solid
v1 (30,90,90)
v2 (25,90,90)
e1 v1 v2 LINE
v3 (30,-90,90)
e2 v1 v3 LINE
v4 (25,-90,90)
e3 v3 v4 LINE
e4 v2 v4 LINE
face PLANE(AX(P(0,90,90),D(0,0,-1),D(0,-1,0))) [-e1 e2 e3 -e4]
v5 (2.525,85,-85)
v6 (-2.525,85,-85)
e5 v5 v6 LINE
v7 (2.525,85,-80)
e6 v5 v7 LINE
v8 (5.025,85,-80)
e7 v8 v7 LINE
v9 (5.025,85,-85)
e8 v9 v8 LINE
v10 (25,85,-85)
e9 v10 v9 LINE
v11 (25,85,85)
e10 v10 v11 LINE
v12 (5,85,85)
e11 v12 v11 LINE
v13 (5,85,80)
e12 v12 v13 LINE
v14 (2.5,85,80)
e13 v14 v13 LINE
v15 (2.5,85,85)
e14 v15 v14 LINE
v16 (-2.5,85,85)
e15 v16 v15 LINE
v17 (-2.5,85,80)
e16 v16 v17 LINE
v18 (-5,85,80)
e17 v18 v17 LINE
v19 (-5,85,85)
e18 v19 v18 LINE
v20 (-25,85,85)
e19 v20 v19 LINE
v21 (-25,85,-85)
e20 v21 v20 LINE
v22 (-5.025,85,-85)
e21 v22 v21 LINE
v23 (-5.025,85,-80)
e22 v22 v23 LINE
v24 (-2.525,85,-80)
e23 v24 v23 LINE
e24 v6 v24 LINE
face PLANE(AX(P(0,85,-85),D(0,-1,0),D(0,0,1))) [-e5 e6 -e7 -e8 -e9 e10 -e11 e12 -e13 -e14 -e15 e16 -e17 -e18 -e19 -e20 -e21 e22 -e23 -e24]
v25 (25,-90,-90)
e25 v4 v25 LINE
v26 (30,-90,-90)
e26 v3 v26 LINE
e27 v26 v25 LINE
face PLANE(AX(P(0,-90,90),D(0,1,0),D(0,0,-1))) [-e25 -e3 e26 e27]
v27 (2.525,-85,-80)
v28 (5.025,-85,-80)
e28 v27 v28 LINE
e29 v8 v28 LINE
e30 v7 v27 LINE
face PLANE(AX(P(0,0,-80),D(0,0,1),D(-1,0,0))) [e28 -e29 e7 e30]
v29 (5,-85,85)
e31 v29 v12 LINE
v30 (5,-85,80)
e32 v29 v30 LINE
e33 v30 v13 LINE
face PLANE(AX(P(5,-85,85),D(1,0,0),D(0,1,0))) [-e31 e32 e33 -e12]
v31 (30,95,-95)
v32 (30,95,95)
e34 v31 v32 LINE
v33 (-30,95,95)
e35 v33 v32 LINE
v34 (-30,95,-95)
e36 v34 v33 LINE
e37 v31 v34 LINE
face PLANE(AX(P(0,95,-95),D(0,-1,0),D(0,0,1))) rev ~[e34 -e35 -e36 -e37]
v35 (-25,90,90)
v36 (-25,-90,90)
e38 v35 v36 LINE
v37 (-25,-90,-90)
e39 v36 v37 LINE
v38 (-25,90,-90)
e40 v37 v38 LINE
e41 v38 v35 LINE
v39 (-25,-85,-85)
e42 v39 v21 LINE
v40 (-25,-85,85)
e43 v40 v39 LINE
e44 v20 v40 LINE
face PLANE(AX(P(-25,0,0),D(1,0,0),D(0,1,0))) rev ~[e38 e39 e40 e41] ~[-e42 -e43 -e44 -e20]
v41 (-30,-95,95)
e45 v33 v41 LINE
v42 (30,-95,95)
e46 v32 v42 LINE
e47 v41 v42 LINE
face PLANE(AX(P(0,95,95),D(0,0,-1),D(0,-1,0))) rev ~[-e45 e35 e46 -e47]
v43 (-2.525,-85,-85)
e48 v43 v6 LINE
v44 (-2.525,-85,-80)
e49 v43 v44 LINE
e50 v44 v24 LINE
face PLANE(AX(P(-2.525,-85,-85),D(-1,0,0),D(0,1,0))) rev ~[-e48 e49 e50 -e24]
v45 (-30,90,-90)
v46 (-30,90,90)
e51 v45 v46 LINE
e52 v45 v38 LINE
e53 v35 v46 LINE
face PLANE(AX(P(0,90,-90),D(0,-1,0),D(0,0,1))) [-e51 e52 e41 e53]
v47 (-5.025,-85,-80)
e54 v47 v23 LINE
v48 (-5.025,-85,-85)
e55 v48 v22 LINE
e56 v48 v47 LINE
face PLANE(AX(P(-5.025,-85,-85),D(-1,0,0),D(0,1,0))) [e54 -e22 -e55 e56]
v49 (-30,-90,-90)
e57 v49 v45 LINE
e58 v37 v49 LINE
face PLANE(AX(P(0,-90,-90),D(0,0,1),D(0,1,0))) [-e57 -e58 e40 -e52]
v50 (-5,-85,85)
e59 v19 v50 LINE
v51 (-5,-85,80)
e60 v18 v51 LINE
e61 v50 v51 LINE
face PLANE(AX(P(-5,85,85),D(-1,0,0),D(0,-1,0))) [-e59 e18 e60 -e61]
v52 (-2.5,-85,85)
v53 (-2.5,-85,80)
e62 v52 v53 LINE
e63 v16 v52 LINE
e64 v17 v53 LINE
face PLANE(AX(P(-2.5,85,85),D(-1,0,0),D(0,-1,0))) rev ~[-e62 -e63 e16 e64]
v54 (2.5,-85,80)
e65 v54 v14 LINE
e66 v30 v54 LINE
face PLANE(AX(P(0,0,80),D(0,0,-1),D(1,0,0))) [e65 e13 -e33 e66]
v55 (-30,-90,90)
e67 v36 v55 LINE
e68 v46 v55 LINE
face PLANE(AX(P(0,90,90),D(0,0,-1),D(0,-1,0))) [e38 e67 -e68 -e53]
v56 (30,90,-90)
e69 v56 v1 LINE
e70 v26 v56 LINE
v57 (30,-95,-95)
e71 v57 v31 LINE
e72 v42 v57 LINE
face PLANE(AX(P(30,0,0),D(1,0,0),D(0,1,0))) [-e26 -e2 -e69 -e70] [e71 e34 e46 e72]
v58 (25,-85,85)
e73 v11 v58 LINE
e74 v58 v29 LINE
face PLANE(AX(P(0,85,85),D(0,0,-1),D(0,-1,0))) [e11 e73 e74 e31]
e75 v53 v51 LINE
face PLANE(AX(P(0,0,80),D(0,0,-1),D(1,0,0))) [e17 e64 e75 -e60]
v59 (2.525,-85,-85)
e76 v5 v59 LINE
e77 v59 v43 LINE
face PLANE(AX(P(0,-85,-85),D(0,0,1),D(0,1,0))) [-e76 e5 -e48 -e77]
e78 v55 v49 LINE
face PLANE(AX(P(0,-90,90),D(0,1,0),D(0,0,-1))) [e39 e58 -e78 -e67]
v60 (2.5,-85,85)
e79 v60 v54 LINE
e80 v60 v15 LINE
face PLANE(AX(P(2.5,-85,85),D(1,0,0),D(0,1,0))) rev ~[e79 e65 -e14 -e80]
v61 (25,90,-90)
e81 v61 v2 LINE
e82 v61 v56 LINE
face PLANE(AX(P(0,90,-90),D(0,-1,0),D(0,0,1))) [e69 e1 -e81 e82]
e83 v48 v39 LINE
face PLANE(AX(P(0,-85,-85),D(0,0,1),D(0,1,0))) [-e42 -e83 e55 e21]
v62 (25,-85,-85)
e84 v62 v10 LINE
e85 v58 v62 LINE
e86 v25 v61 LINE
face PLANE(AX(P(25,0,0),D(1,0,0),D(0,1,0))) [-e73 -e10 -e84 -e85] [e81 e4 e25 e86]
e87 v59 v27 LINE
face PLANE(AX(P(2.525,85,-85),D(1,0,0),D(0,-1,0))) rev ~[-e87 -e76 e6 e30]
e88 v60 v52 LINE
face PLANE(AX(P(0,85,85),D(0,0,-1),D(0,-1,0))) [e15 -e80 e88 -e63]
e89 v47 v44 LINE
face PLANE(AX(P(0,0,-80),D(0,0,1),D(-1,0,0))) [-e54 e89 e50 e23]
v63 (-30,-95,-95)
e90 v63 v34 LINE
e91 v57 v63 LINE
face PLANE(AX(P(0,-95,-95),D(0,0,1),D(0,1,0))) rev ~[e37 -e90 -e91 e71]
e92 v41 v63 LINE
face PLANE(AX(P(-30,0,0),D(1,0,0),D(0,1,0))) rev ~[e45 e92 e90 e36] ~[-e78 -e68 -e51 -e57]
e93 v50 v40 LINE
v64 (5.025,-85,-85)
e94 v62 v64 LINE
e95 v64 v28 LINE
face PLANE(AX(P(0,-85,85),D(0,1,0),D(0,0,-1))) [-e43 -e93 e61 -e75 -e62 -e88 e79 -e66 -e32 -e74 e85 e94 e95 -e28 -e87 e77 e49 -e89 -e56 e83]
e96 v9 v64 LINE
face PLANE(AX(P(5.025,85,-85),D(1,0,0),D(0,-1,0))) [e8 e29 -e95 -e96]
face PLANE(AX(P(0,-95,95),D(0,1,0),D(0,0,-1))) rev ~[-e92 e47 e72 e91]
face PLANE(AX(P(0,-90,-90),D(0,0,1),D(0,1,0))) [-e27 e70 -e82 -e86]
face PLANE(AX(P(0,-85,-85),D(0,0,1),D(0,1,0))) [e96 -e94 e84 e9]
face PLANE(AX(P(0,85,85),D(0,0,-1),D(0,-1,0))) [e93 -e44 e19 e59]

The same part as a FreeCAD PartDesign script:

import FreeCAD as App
import Part
import Sketcher

V = App.Vector


def add_polygon(sketch, points):
    """Adds a closed chain of lines whose ends are joined by coincident constraints."""
    first, n = sketch.GeometryCount, len(points)
    for a, b in zip(points, points[1:] + points[:1]):
        sketch.addGeometry(Part.LineSegment(App.Vector(*a, 0), App.Vector(*b, 0)), False)
    for i in range(n):
        sketch.addConstraint(Sketcher.Constraint("Coincident", first + i, 2, first + (i + 1) % n, 1))

doc = App.newDocument("Part")
body = doc.addObject("PartDesign::Body", "Body")

sketch1 = body.newObject("Sketcher::SketchObject", "Sketch")
sketch1.AttachmentSupport = (doc.getObject("YZ_Plane"), [""])
sketch1.MapMode = "FlatFace"
add_polygon(sketch1, [(-90, -90), (90, -90), (90, 90), (-90, 90)])
add_polygon(sketch1, [(-85, 85), (85, 85), (85, -85), (-85, -85)])
sketch1.addConstraint(Sketcher.Constraint("Horizontal", 0))
sketch1.addConstraint(Sketcher.Constraint("Vertical", 1))
sketch1.addConstraint(Sketcher.Constraint("Horizontal", 2))
sketch1.addConstraint(Sketcher.Constraint("Vertical", 3))
sketch1.addConstraint(Sketcher.Constraint("Horizontal", 4))
sketch1.addConstraint(Sketcher.Constraint("Vertical", 5))
sketch1.addConstraint(Sketcher.Constraint("Horizontal", 6))
sketch1.addConstraint(Sketcher.Constraint("Vertical", 7))
sketch1.addConstraint(Sketcher.Constraint("Symmetric", 0, 2, 2, 2, -1, 1))
sketch1.addConstraint(Sketcher.Constraint("Symmetric", 4, 2, 6, 2, -1, 1))
sketch1.addConstraint(Sketcher.Constraint("Equal", 2, 1))
sketch1.addConstraint(Sketcher.Constraint("Equal", 6, 5))
sketch1.addConstraint(Sketcher.Constraint("DistanceX", 4, 2, 1, 2, 5.0))
sketch1.addConstraint(Sketcher.Constraint("DistanceX", 0, 1, 0, 2, 180.0))
pad1 = body.newObject("PartDesign::Pad", "Pad")
pad1.Profile = sketch1
pad1.Length = 50
pad1.Midplane = True

sketch2 = body.newObject("Sketcher::SketchObject", "Sketch001")
sketch2.AttachmentSupport = (doc.getObject("YZ_Plane"), [""])
sketch2.MapMode = "FlatFace"
add_polygon(sketch2, [(95, -95), (95, 95), (-95, 95), (-95, -95)])
add_polygon(sketch2, [(90, 90), (90, -90), (-90, -90), (-90, 90)])
sketch2.addConstraint(Sketcher.Constraint("Vertical", 0))
sketch2.addConstraint(Sketcher.Constraint("Horizontal", 1))
sketch2.addConstraint(Sketcher.Constraint("Vertical", 2))
sketch2.addConstraint(Sketcher.Constraint("Horizontal", 3))
sketch2.addConstraint(Sketcher.Constraint("Vertical", 4))
sketch2.addConstraint(Sketcher.Constraint("Horizontal", 5))
sketch2.addConstraint(Sketcher.Constraint("Vertical", 6))
sketch2.addConstraint(Sketcher.Constraint("Horizontal", 7))
sketch2.addConstraint(Sketcher.Constraint("Symmetric", 0, 2, 2, 2, -1, 1))
sketch2.addConstraint(Sketcher.Constraint("Symmetric", 4, 2, 6, 2, -1, 1))
sketch2.addConstraint(Sketcher.Constraint("Equal", 3, 0))
sketch2.addConstraint(Sketcher.Constraint("Equal", 7, 4))
sketch2.addConstraint(Sketcher.Constraint("DistanceX", 1, 2, 1, 1, 190.0))
sketch2.addConstraint(Sketcher.Constraint("DistanceX", 4, 2, 3, 2, 5.0))
pad2 = body.newObject("PartDesign::Pad", "Pad001")
pad2.Profile = sketch2
pad2.Length = 60
pad2.Midplane = True

sketch3 = body.newObject("Sketcher::SketchObject", "Sketch002")
sketch3.AttachmentSupport = (doc.getObject("XY_Plane"), [""])
sketch3.MapMode = "FlatFace"
sketch3.AttachmentOffset = App.Placement(V(0, 0, -85), App.Rotation())
add_polygon(sketch3, [(-5, -85), (-2.5, -85), (-2.5, 85), (-5, 85)])
add_polygon(sketch3, [(2.5, 85), (2.5, -85), (5, -85), (5, 85)])
sketch3.addConstraint(Sketcher.Constraint("Horizontal", 0))
sketch3.addConstraint(Sketcher.Constraint("Vertical", 1))
sketch3.addConstraint(Sketcher.Constraint("Horizontal", 2))
sketch3.addConstraint(Sketcher.Constraint("Vertical", 3))
sketch3.addConstraint(Sketcher.Constraint("Vertical", 4))
sketch3.addConstraint(Sketcher.Constraint("Horizontal", 5))
sketch3.addConstraint(Sketcher.Constraint("Vertical", 6))
sketch3.addConstraint(Sketcher.Constraint("Horizontal", 7))
sketch3.addConstraint(Sketcher.Constraint("Symmetric", 1, 2, 4, 2, -1, 1))
sketch3.addConstraint(Sketcher.Constraint("Symmetric", 3, 2, 6, 2, -1, 1))
sketch3.addConstraint(Sketcher.Constraint("Horizontal", 3, 2, 4, 2))
sketch3.addConstraint(Sketcher.Constraint("DistanceX", 0, 1, 0, 2, 2.5))
sketch3.addConstraint(Sketcher.Constraint("DistanceY", 1, 1, 1, 2, 170.0))
sketch3.addConstraint(Sketcher.Constraint("DistanceX", 0, 2, 4, 2, 5.05))
pad3 = body.newObject("PartDesign::Pad", "Pad002")
pad3.Profile = sketch3
pad3.Length = 5

sketch4 = body.newObject("Sketcher::SketchObject", "Sketch003")
sketch4.AttachmentSupport = (doc.getObject("XY_Plane"), [""])
sketch4.MapMode = "FlatFace"
sketch4.AttachmentOffset = App.Placement(V(0, 0, 85), App.Rotation())
add_polygon(sketch4, [(-5, 85), (-2.5, 85), (-2.5, -85), (-5, -85)])
add_polygon(sketch4, [(2.5, -85), (2.5, 85), (5, 85), (5, -85)])
sketch4.addConstraint(Sketcher.Constraint("Horizontal", 0))
sketch4.addConstraint(Sketcher.Constraint("Vertical", 1))
sketch4.addConstraint(Sketcher.Constraint("Horizontal", 2))
sketch4.addConstraint(Sketcher.Constraint("Vertical", 3))
sketch4.addConstraint(Sketcher.Constraint("Vertical", 4))
sketch4.addConstraint(Sketcher.Constraint("Horizontal", 5))
sketch4.addConstraint(Sketcher.Constraint("Vertical", 6))
sketch4.addConstraint(Sketcher.Constraint("Horizontal", 7))
sketch4.addConstraint(Sketcher.Constraint("Symmetric", 1, 2, 4, 2, -1, 1))
sketch4.addConstraint(Sketcher.Constraint("Symmetric", 3, 2, 6, 2, -1, 1))
sketch4.addConstraint(Sketcher.Constraint("Horizontal", 3, 2, 4, 2))
sketch4.addConstraint(Sketcher.Constraint("DistanceX", 0, 1, 0, 2, 2.5))
sketch4.addConstraint(Sketcher.Constraint("DistanceX", 2, 2, -1, 1, 5.0))
sketch4.addConstraint(Sketcher.Constraint("DistanceY", 1, 2, 1, 1, 170.0))
pad4 = body.newObject("PartDesign::Pad", "Pad003")
pad4.Profile = sketch4
pad4.Length = 5
pad4.Reversed = True

doc.recompute()
